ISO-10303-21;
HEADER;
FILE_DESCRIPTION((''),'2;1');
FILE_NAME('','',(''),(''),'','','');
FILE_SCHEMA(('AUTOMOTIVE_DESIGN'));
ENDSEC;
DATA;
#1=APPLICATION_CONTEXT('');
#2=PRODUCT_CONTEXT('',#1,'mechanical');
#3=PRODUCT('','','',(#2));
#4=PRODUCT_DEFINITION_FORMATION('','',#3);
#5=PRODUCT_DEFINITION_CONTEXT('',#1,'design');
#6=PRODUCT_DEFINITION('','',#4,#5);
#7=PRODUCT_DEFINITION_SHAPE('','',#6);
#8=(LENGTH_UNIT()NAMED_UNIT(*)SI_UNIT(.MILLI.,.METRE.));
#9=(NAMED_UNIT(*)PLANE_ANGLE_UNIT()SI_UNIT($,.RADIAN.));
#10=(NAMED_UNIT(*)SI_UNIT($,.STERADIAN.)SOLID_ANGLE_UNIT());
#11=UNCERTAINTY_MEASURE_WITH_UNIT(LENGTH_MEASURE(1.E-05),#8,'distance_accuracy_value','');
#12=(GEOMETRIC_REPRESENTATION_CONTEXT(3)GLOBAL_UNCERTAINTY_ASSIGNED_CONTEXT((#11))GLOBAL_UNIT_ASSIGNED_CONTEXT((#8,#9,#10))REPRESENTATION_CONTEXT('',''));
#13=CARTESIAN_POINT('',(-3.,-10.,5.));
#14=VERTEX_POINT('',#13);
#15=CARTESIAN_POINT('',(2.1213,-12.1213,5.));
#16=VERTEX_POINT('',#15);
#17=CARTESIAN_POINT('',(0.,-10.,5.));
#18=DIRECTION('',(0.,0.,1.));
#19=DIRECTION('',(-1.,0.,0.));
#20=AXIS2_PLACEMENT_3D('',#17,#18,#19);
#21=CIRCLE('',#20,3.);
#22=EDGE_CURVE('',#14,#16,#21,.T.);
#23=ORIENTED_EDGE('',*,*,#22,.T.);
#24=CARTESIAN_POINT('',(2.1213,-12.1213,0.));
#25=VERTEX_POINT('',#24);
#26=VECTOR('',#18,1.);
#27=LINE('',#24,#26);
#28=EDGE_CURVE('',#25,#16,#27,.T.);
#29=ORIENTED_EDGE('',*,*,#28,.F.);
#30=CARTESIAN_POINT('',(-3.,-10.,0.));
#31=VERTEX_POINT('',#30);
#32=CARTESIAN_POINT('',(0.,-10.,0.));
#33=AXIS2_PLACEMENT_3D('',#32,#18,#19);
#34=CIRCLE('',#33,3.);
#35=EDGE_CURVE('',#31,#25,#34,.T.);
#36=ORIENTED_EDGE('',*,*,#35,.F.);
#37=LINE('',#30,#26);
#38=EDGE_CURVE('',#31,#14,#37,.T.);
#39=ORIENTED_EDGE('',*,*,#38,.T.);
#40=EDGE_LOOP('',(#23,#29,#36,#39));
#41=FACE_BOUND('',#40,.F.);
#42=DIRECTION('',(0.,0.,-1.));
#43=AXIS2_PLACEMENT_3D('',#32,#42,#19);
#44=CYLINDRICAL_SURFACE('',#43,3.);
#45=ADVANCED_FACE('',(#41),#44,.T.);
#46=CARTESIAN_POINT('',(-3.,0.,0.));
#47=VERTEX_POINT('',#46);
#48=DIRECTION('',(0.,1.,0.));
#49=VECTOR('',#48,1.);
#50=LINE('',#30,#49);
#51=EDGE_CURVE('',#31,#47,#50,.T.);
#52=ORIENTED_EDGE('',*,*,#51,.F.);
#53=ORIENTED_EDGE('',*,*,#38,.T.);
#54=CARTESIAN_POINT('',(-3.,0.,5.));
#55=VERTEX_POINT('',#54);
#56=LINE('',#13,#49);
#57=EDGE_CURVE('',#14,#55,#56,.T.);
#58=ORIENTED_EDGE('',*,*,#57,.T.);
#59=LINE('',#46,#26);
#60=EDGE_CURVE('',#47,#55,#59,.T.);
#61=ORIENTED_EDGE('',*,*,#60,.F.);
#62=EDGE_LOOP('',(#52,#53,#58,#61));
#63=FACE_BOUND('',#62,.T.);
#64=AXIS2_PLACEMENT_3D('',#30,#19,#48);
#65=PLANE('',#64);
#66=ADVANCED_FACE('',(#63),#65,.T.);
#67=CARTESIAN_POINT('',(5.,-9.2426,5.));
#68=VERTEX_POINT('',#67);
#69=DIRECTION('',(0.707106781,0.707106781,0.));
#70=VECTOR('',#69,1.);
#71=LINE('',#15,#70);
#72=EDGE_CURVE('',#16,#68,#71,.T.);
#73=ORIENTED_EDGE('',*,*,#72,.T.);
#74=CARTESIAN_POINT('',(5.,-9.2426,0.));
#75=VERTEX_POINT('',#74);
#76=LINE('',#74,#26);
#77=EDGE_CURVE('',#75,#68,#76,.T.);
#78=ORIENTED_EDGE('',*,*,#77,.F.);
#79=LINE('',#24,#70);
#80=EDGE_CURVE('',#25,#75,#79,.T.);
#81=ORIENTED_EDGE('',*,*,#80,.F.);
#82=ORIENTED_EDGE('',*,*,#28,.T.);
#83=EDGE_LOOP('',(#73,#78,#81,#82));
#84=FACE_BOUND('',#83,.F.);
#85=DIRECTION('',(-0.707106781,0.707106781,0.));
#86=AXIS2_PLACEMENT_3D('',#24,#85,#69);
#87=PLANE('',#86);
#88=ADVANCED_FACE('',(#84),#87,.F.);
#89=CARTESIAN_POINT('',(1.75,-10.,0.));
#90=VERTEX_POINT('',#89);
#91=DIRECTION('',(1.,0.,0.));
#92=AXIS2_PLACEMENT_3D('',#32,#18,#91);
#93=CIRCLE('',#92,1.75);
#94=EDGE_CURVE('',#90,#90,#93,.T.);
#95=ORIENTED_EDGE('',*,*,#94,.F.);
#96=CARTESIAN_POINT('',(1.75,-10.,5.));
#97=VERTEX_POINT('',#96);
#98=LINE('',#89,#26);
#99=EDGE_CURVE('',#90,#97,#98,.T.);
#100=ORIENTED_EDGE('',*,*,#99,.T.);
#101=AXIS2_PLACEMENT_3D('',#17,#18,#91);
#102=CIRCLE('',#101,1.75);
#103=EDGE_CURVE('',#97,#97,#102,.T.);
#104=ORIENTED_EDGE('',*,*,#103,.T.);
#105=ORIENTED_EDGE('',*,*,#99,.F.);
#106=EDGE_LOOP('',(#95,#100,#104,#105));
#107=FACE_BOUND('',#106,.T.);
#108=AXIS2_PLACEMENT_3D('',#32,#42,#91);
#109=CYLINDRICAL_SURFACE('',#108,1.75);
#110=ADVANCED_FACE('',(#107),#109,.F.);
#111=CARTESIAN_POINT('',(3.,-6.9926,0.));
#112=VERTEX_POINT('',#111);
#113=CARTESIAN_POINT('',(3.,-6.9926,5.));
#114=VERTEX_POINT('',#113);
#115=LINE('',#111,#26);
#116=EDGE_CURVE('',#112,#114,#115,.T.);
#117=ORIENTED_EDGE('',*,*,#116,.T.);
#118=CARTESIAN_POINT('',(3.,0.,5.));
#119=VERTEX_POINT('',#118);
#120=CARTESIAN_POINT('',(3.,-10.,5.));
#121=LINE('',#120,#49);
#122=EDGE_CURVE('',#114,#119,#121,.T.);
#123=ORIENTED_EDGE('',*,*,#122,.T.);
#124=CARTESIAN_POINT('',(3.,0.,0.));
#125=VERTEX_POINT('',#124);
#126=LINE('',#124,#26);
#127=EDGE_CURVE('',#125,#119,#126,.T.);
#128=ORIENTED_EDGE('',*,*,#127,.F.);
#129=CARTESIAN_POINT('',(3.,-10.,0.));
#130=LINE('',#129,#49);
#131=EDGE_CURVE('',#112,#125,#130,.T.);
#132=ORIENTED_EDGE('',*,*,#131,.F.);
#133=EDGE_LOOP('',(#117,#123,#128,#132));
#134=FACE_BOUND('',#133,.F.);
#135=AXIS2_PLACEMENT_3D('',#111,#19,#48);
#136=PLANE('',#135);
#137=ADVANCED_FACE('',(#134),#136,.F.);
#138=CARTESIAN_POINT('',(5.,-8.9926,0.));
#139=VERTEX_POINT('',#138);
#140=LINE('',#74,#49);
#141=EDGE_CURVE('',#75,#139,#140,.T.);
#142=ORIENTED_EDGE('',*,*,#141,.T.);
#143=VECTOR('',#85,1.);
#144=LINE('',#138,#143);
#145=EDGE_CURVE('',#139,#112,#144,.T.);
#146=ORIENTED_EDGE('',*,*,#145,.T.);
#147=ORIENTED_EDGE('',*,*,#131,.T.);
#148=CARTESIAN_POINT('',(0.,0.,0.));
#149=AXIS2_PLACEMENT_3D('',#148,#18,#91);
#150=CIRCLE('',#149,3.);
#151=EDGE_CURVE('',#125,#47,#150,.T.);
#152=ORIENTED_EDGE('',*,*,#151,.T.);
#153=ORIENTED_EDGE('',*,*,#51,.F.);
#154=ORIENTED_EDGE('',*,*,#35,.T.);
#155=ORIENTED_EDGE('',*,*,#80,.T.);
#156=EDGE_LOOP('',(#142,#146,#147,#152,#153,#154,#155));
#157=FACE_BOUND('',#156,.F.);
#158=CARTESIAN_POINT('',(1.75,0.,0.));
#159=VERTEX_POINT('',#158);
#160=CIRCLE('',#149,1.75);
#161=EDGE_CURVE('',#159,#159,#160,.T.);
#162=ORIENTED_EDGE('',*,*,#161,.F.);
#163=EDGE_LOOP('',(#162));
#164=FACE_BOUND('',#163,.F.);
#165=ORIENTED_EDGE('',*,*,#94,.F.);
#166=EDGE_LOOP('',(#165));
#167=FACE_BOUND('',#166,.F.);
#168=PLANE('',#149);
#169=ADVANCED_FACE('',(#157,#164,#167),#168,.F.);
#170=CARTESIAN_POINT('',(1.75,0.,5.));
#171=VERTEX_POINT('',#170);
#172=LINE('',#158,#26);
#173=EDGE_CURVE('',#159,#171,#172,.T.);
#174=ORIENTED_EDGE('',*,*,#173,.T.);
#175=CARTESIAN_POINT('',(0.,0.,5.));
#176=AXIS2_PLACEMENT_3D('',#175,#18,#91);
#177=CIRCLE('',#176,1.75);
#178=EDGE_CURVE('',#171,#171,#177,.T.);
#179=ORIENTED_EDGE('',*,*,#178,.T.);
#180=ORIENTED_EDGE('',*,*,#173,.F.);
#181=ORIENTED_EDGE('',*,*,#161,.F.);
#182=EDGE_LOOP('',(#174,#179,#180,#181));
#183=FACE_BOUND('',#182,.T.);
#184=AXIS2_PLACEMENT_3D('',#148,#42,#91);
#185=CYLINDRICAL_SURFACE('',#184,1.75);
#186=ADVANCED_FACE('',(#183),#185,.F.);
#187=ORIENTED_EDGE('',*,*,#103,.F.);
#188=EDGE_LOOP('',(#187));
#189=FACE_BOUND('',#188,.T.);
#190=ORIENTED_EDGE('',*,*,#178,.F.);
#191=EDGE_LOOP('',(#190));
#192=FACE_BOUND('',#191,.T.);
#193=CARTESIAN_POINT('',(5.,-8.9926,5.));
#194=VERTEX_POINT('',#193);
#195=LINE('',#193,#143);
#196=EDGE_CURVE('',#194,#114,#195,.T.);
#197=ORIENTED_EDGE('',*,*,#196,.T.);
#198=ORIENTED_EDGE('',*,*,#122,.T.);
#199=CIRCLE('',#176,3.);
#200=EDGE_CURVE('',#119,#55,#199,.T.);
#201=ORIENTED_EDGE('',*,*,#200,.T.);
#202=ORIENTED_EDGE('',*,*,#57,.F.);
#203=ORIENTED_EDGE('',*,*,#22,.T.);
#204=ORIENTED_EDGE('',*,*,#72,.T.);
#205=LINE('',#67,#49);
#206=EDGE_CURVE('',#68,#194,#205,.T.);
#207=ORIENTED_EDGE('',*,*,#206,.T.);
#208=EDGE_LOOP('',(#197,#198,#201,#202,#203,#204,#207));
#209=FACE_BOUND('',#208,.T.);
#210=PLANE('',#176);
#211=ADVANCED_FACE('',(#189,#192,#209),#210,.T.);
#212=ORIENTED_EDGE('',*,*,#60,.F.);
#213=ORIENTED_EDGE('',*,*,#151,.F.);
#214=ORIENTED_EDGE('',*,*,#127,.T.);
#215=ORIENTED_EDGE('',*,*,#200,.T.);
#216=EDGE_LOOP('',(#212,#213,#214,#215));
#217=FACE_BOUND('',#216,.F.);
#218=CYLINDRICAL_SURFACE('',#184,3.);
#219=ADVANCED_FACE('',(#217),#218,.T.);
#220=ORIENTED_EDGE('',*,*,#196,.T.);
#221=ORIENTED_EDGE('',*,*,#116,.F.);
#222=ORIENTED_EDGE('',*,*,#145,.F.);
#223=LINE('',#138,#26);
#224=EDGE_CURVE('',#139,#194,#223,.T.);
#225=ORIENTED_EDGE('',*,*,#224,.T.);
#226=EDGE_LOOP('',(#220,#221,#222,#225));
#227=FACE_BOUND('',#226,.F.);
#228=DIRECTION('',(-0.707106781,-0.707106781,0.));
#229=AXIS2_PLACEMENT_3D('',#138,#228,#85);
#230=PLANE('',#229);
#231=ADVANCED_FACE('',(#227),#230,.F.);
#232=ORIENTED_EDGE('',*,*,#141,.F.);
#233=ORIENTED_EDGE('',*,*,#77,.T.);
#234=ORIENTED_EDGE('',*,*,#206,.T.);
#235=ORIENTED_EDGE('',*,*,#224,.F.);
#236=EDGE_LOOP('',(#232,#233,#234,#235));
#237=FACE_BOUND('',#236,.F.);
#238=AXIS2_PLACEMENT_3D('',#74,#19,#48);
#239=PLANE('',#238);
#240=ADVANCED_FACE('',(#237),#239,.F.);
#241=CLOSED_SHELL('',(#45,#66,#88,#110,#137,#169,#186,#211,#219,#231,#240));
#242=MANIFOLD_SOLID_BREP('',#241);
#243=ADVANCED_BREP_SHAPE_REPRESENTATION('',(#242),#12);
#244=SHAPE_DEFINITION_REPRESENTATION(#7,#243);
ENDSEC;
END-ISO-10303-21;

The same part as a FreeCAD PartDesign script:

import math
import FreeCAD as App
import Part
import Sketcher
Q = App.Units.Quantity

doc = App.newDocument("Part")
body = doc.addObject("PartDesign::Body", "Body")

# Sketch on XY plane
sketch1 = body.newObject("Sketcher::SketchObject", "Sketch")
sketch1.AttachmentSupport = (doc.getObject("XY_Plane"), [""])
sketch1.MapMode = "FlatFace"
sketch1.addGeometry([
    Part.LineSegment(App.Vector(-3, 0, 0), App.Vector(-3, -10, 0)),  # 0
    Part.ArcOfCircle(Part.Circle(App.Vector(0, -10, 0), App.Vector(0, 0, 1), 3), math.radians(180), math.radians(315)),  # 1
    Part.LineSegment(App.Vector(2.12, -12.12, 0), App.Vector(5, -9.24, 0)),  # 2
    Part.LineSegment(App.Vector(5, -9.24, 0), App.Vector(5, -8.99, 0)),  # 3
    Part.LineSegment(App.Vector(5, -8.99, 0), App.Vector(3, -6.99, 0)),  # 4
    Part.LineSegment(App.Vector(3, -6.99, 0), App.Vector(3, 0, 0)),  # 5
    Part.ArcOfCircle(Part.Circle(App.Vector(0, 0, 0), App.Vector(0, 0, 1), 3), math.radians(0), math.radians(180)),  # 6
    Part.Circle(App.Vector(0, -10, 0), App.Vector(0, 0, 1), 1.75),  # 7
    Part.Circle(App.Vector(0, 0, 0), App.Vector(0, 0, 1), 1.75),  # 8
], False)
sketch1.addConstraint([
    Sketcher.Constraint("Tangent", 0, 2, 1, 1),
    Sketcher.Constraint("Tangent", 1, 2, 2, 1),
    Sketcher.Constraint("Coincident", 2, 2, 3, 1),
    Sketcher.Constraint("Coincident", 3, 2, 4, 1),
    Sketcher.Constraint("Coincident", 4, 2, 5, 1),
    Sketcher.Constraint("Tangent", 5, 2, 6, 1),
    Sketcher.Constraint("Tangent", 6, 2, 0, 1),
    Sketcher.Constraint("Vertical", 0),
    Sketcher.Constraint("Vertical", 3),
    Sketcher.Constraint("Vertical", 5),
    Sketcher.Constraint("Coincident", 6, 3, -1, 1),
    Sketcher.Constraint("Coincident", 8, 3, -1, 1),
    Sketcher.Constraint("Coincident", 7, 3, 1, 3),
    Sketcher.Constraint("Equal", 1, 6),
    Sketcher.Constraint("Equal", 7, 8),
    Sketcher.Constraint("Perpendicular", 2, 4),
    Sketcher.Constraint("Radius", 1, Q("3 mm")),
    Sketcher.Constraint("Diameter", 7, Q("3.5 mm")),
    Sketcher.Constraint("Angle", 2, Q("45 deg")),
    Sketcher.Constraint("DistanceX", -1, 1, 2, 2, Q("5 mm")),
    Sketcher.Constraint("DistanceY", 3, 1, 3, 2, Q("0.25 mm")),
    Sketcher.Constraint("DistanceY", 0, 2, 0, 1, Q("10 mm")),
])
pad1 = body.newObject("PartDesign::Pad", "Pad")
pad1.Profile = sketch1
pad1.Length = 5

doc.recompute()
